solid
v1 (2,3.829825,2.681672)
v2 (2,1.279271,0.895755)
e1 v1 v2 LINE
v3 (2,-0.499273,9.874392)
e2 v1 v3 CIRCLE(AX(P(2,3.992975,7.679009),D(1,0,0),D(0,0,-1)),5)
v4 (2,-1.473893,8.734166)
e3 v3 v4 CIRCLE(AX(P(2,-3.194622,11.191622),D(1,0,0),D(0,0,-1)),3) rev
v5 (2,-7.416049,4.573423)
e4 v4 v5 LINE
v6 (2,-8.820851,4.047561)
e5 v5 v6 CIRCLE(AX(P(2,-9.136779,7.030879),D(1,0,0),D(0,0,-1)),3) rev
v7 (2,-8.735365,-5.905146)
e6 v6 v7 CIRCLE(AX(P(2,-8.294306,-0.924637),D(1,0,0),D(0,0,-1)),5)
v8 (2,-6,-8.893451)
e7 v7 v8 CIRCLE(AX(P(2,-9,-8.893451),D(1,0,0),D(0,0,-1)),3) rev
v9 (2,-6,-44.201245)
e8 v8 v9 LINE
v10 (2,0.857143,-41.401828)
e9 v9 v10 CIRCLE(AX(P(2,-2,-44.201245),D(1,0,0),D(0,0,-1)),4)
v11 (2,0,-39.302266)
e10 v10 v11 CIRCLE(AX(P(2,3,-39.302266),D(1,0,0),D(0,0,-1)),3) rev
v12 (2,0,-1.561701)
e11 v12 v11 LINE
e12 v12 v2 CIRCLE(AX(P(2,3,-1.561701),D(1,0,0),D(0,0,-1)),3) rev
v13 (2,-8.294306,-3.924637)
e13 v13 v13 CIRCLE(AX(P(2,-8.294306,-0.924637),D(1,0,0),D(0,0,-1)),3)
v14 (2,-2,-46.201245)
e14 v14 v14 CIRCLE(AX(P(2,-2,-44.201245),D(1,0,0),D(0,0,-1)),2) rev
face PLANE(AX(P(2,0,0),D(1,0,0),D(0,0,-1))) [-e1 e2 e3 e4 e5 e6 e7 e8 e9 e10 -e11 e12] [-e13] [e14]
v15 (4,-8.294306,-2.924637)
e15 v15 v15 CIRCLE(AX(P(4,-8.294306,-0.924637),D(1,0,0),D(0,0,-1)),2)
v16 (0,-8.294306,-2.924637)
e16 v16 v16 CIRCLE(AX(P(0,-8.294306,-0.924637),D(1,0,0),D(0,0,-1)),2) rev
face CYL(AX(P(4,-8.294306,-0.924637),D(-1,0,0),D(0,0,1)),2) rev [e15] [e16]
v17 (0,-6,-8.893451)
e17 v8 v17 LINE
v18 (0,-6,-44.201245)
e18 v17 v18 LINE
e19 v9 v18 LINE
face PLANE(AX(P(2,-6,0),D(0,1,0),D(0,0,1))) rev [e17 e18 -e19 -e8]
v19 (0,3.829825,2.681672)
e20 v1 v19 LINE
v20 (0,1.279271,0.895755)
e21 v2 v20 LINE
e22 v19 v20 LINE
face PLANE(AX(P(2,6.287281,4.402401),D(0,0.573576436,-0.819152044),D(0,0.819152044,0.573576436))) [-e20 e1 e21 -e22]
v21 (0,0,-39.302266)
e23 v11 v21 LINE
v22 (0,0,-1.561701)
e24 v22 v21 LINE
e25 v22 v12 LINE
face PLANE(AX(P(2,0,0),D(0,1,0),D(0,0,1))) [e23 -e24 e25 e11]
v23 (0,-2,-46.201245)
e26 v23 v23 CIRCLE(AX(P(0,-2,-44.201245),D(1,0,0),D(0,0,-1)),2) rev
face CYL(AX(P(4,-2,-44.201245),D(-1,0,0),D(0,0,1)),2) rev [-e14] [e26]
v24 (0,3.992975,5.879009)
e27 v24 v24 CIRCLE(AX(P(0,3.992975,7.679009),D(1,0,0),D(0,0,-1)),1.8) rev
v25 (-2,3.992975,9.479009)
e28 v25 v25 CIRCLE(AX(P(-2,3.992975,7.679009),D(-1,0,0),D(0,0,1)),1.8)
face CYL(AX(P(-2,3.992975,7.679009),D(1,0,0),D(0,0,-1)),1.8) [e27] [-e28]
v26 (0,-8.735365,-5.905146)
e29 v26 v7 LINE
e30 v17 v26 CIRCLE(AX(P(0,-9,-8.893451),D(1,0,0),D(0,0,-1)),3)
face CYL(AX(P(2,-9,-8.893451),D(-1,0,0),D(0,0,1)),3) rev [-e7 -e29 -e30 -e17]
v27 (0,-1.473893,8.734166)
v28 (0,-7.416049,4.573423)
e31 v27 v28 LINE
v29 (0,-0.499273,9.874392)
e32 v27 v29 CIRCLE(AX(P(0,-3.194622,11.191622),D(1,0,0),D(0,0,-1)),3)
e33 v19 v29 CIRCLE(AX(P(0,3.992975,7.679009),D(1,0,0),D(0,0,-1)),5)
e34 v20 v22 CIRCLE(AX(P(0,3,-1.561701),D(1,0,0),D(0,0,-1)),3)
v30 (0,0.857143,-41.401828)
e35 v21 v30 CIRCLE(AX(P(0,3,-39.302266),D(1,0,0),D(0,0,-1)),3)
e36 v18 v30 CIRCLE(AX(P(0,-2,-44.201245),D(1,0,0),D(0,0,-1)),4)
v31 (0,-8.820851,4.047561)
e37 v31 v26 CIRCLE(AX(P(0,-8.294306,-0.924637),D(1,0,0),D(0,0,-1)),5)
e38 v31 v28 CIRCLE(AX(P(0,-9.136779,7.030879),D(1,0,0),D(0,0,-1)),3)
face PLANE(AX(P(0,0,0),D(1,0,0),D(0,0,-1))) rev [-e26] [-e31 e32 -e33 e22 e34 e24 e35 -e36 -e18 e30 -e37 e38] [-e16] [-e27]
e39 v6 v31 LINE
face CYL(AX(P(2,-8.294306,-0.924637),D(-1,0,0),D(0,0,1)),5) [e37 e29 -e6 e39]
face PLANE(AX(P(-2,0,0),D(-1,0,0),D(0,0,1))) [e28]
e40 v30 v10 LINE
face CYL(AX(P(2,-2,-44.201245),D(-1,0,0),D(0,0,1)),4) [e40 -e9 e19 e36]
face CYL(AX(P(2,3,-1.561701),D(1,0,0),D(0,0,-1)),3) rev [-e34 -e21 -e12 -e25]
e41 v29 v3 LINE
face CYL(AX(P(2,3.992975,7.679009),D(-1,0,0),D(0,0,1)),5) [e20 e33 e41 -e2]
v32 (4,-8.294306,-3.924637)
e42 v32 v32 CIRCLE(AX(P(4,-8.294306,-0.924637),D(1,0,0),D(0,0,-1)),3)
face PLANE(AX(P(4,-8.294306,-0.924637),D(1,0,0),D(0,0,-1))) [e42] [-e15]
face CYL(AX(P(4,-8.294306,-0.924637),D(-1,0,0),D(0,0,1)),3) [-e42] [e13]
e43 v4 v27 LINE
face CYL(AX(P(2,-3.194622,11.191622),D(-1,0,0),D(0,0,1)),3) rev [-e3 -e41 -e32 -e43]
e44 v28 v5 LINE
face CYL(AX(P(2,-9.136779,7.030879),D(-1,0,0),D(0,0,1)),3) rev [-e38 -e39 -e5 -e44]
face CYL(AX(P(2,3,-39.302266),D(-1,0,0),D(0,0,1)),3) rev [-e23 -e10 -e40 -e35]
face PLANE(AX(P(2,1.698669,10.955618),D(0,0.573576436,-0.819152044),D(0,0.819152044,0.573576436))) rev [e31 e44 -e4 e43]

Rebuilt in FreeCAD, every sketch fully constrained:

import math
import FreeCAD as App
import Part
import Sketcher
Q = App.Units.Quantity


def edges_at(feature, points):
    """Names of the edges that pass closest to the given points."""
    edges = feature.Shape.Edges
    near = lambda p: min(range(len(edges)), key=lambda i: edges[i].distToShape(Part.Vertex(*p))[0])
    return sorted({f"Edge{near(p) + 1}" for p in points})

doc = App.newDocument("Part")
params = doc.addObject("Spreadsheet::Sheet", "Params")
for row, (alias, value) in enumerate([
    ("sketch1_radius", "5.000001 mm"),
    ("sketch1_radius2", "4 mm"),
    ("sketch1_length", "9 mm"),
    ("pad1_length", "2 mm"),
    ("sketch2_diameter", "6 mm"),
    ("pad2_length", "2 mm"),
    ("sketch3_diameter", "4 mm"),
    ("fillet_radius", "3 mm"),
    ("sketch4_diameter", "4 mm"),
    ("pad3_length", "2 mm"),
    ("sketch5_diameter", "3.6 mm"),
    ("pad4_length", "2 mm"),
], start=1):
    params.set(f"A{row}", alias)
    params.set(f"B{row}", "=" + value)
    params.setAlias(f"B{row}", alias)

body = doc.addObject("PartDesign::Body", "Body")

sketch1 = body.newObject("Sketcher::SketchObject", "Sketch")
sketch1.AttachmentSupport = (doc.getObject("YZ_Plane"), [""])
sketch1.MapMode = "FlatFace"
sketch1.addGeometry([
    Part.LineSegment(App.Vector(0, -40.74, 0), App.Vector(0, 0, 0)),
    Part.LineSegment(App.Vector(0, 0, 0), App.Vector(3.83, 2.68, 0)),
    Part.ArcOfCircle(Part.Circle(App.Vector(3.99, 7.68, 0), App.Vector(0, 0, 1), 5), math.radians(-91.87), math.radians(-90)),
    Part.ArcOfCircle(Part.Circle(App.Vector(3.99, 7.68, 0), App.Vector(0, 0, 1), 5), math.radians(-90), math.radians(162)),
    Part.LineSegment(App.Vector(-0.76, 9.23, 0), App.Vector(-8.13, 4.07, 0)),
    Part.ArcOfCircle(Part.Circle(App.Vector(-8.29, -0.92, 0), App.Vector(0, 0, 1), 5), math.radians(88), math.radians(270)),
    Part.ArcOfCircle(Part.Circle(App.Vector(-8.29, -0.92, 0), App.Vector(0, 0, 1), 5), math.radians(-90), math.radians(-63)),
    Part.LineSegment(App.Vector(-6, -5.37, 0), App.Vector(-6, -44.2, 0)),
    Part.ArcOfCircle(Part.Circle(App.Vector(-2, -44.2, 0), App.Vector(0, 0, 1), 4), math.radians(180), math.radians(270)),
    Part.ArcOfCircle(Part.Circle(App.Vector(-2, -44.2, 0), App.Vector(0, 0, 1), 4), math.radians(-90), math.radians(60)),
], False)
sketch1.addConstraint([
    Sketcher.Constraint("Coincident", 0, 2, 1, 1),
    Sketcher.Constraint("Coincident", 1, 2, 2, 1),
    Sketcher.Constraint("Tangent", 2, 2, 3, 1),
    Sketcher.Constraint("Coincident", 3, 2, 4, 1),
    Sketcher.Constraint("Coincident", 4, 2, 5, 1),
    Sketcher.Constraint("Tangent", 5, 2, 6, 1),
    Sketcher.Constraint("Coincident", 6, 2, 7, 1),
    Sketcher.Constraint("Tangent", 7, 2, 8, 1),
    Sketcher.Constraint("Tangent", 8, 2, 9, 1),
    Sketcher.Constraint("Coincident", 9, 2, 0, 1),
    Sketcher.Constraint("Vertical", 0),
    Sketcher.Constraint("Vertical", 7),
    Sketcher.Constraint("Coincident", 0, 2, -1, 1),
    Sketcher.Constraint("Equal", 2, 3),
    Sketcher.Constraint("Equal", 3, 5),
    Sketcher.Constraint("Equal", 5, 6),
    Sketcher.Constraint("Equal", 8, 9),
    Sketcher.Constraint("Parallel", 1, 4),
    Sketcher.Constraint("Vertical", 3, 3, 2, 2),
    Sketcher.Constraint("Vertical", 6, 3, 5, 2),
    Sketcher.Constraint("Vertical", 9, 3, 8, 2),
    Sketcher.Constraint("Radius", 2, 5.000001),
    Sketcher.Constraint("Radius", 8, 4.0),
    Sketcher.Constraint("Angle", 1, Q("35 deg")),
    Sketcher.Constraint("Distance", 4, 9.0),
    Sketcher.Constraint("DistanceX", 8, 3, -1, 1, 2.0),
    Sketcher.Constraint("DistanceY", 7, 2, 7, 1, 38.834068),
    Sketcher.Constraint("DistanceY", -1, 1, 4, 2, 4.0727),
    Sketcher.Constraint("DistanceY", 0, 1, 0, 2, 40.737144),
    Sketcher.Constraint("DistanceY", -1, 1, 2, 3, 7.679011),
    Sketcher.Constraint("DistanceX", 5, 3, 3, 3, 12.287281),
])
sketch1.setExpression("Constraints[21]", "Params.sketch1_radius")
sketch1.setExpression("Constraints[22]", "Params.sketch1_radius2")
sketch1.setExpression("Constraints[24]", "Params.sketch1_length")
pad1 = body.newObject("PartDesign::Pad", "Pad")
pad1.Profile = sketch1
pad1.setExpression("Length", "Params.pad1_length")

sketch2 = body.newObject("Sketcher::SketchObject", "Sketch001")
sketch2.AttachmentSupport = (doc.getObject("YZ_Plane"), [""])
sketch2.MapMode = "FlatFace"
sketch2.AttachmentOffset = App.Placement(App.Vector(0, 0, 2), App.Rotation())
sketch2.addGeometry(Part.Circle(App.Vector(-8.3, -0.9, 0), App.Vector(0, 0, 1), 3), False)
sketch2.addConstraint([
    Sketcher.Constraint("Diameter", 0, 6.0),
    Sketcher.Constraint("DistanceX", 0, 3, -1, 1, 8.294306),
    Sketcher.Constraint("DistanceY", 0, 3, -1, 1, 0.924637),
])
sketch2.setExpression("Constraints[0]", "Params.sketch2_diameter")
pad2 = body.newObject("PartDesign::Pad", "Pad001")
pad2.Profile = sketch2
pad2.setExpression("Length", "Params.pad2_length")

sketch3 = body.newObject("Sketcher::SketchObject", "Sketch002")
sketch3.AttachmentSupport = (doc.getObject("YZ_Plane"), [""])
sketch3.MapMode = "FlatFace"
sketch3.addGeometry([
    Part.Circle(App.Vector(4, 7.7, 0), App.Vector(0, 0, 1), 2),
    Part.Circle(App.Vector(-2, -44.2, 0), App.Vector(0, 0, 1), 2),
    Part.Circle(App.Vector(-8.3, -0.9, 0), App.Vector(0, 0, 1), 2),
], False)
sketch3.addConstraint([
    Sketcher.Constraint("Equal", 0, 1),
    Sketcher.Constraint("Equal", 1, 2),
    Sketcher.Constraint("Diameter", 0, 4.0),
    Sketcher.Constraint("DistanceX", 1, 3, -1, 1, 2.0),
    Sketcher.Constraint("DistanceY", -1, 1, 0, 3, 7.679009),
    Sketcher.Constraint("DistanceX", 2, 3, 0, 3, 12.287281),
    Sketcher.Constraint("DistanceY", 1, 3, 2, 3, 43.276608),
    Sketcher.Constraint("DistanceX", -1, 1, 0, 3, 3.992975),
    Sketcher.Constraint("DistanceY", 1, 3, -1, 1, 44.201245),
])
sketch3.setExpression("Constraints[2]", "Params.sketch3_diameter")
pocket1 = body.newObject("PartDesign::Pocket", "Pocket")
pocket1.Profile = sketch3
pocket1.Type = "ThroughAll"
pocket1.Midplane = True
doc.recompute()

fillet = body.newObject("PartDesign::Fillet", "Fillet")
fillet.Base = (pocket1, edges_at(pocket1, [
    (1, -6, -5.367),
    (1, 0, 0),
    (1, 0, -40.737),
    (1, -0.759, 9.235),
    (1, -8.131, 4.073),
]))
fillet.setExpression("Radius", "Params.fillet_radius")

sketch4 = body.newObject("Sketcher::SketchObject", "Sketch003")
sketch4.AttachmentSupport = (doc.getObject("YZ_Plane"), [""])
sketch4.MapMode = "FlatFace"
sketch4.addGeometry(Part.Circle(App.Vector(4, 7.7, 0), App.Vector(0, 0, 1), 2), False)
sketch4.addConstraint([
    Sketcher.Constraint("Diameter", 0, 4.0),
    Sketcher.Constraint("DistanceY", -1, 1, 0, 3, 7.679009),
    Sketcher.Constraint("DistanceX", -1, 1, 0, 3, 3.992975),
])
sketch4.setExpression("Constraints[0]", "Params.sketch4_diameter")
pad3 = body.newObject("PartDesign::Pad", "Pad002")
pad3.Profile = sketch4
pad3.setExpression("Length", "Params.pad3_length")

sketch5 = body.newObject("Sketcher::SketchObject", "Sketch004")
sketch5.AttachmentSupport = (doc.getObject("YZ_Plane"), [""])
sketch5.MapMode = "FlatFace"
sketch5.addGeometry(Part.Circle(App.Vector(4, 7.7, 0), App.Vector(0, 0, 1), 1.8), False)
sketch5.addConstraint([
    Sketcher.Constraint("Diameter", 0, 3.6),
    Sketcher.Constraint("DistanceY", -1, 1, 0, 3, 7.679009),
    Sketcher.Constraint("DistanceX", -1, 1, 0, 3, 3.992975),
])
sketch5.setExpression("Constraints[0]", "Params.sketch5_diameter")
pad4 = body.newObject("PartDesign::Pad", "Pad003")
pad4.Profile = sketch5
pad4.setExpression("Length", "Params.pad4_length")
pad4.Reversed = True

doc.recompute()
